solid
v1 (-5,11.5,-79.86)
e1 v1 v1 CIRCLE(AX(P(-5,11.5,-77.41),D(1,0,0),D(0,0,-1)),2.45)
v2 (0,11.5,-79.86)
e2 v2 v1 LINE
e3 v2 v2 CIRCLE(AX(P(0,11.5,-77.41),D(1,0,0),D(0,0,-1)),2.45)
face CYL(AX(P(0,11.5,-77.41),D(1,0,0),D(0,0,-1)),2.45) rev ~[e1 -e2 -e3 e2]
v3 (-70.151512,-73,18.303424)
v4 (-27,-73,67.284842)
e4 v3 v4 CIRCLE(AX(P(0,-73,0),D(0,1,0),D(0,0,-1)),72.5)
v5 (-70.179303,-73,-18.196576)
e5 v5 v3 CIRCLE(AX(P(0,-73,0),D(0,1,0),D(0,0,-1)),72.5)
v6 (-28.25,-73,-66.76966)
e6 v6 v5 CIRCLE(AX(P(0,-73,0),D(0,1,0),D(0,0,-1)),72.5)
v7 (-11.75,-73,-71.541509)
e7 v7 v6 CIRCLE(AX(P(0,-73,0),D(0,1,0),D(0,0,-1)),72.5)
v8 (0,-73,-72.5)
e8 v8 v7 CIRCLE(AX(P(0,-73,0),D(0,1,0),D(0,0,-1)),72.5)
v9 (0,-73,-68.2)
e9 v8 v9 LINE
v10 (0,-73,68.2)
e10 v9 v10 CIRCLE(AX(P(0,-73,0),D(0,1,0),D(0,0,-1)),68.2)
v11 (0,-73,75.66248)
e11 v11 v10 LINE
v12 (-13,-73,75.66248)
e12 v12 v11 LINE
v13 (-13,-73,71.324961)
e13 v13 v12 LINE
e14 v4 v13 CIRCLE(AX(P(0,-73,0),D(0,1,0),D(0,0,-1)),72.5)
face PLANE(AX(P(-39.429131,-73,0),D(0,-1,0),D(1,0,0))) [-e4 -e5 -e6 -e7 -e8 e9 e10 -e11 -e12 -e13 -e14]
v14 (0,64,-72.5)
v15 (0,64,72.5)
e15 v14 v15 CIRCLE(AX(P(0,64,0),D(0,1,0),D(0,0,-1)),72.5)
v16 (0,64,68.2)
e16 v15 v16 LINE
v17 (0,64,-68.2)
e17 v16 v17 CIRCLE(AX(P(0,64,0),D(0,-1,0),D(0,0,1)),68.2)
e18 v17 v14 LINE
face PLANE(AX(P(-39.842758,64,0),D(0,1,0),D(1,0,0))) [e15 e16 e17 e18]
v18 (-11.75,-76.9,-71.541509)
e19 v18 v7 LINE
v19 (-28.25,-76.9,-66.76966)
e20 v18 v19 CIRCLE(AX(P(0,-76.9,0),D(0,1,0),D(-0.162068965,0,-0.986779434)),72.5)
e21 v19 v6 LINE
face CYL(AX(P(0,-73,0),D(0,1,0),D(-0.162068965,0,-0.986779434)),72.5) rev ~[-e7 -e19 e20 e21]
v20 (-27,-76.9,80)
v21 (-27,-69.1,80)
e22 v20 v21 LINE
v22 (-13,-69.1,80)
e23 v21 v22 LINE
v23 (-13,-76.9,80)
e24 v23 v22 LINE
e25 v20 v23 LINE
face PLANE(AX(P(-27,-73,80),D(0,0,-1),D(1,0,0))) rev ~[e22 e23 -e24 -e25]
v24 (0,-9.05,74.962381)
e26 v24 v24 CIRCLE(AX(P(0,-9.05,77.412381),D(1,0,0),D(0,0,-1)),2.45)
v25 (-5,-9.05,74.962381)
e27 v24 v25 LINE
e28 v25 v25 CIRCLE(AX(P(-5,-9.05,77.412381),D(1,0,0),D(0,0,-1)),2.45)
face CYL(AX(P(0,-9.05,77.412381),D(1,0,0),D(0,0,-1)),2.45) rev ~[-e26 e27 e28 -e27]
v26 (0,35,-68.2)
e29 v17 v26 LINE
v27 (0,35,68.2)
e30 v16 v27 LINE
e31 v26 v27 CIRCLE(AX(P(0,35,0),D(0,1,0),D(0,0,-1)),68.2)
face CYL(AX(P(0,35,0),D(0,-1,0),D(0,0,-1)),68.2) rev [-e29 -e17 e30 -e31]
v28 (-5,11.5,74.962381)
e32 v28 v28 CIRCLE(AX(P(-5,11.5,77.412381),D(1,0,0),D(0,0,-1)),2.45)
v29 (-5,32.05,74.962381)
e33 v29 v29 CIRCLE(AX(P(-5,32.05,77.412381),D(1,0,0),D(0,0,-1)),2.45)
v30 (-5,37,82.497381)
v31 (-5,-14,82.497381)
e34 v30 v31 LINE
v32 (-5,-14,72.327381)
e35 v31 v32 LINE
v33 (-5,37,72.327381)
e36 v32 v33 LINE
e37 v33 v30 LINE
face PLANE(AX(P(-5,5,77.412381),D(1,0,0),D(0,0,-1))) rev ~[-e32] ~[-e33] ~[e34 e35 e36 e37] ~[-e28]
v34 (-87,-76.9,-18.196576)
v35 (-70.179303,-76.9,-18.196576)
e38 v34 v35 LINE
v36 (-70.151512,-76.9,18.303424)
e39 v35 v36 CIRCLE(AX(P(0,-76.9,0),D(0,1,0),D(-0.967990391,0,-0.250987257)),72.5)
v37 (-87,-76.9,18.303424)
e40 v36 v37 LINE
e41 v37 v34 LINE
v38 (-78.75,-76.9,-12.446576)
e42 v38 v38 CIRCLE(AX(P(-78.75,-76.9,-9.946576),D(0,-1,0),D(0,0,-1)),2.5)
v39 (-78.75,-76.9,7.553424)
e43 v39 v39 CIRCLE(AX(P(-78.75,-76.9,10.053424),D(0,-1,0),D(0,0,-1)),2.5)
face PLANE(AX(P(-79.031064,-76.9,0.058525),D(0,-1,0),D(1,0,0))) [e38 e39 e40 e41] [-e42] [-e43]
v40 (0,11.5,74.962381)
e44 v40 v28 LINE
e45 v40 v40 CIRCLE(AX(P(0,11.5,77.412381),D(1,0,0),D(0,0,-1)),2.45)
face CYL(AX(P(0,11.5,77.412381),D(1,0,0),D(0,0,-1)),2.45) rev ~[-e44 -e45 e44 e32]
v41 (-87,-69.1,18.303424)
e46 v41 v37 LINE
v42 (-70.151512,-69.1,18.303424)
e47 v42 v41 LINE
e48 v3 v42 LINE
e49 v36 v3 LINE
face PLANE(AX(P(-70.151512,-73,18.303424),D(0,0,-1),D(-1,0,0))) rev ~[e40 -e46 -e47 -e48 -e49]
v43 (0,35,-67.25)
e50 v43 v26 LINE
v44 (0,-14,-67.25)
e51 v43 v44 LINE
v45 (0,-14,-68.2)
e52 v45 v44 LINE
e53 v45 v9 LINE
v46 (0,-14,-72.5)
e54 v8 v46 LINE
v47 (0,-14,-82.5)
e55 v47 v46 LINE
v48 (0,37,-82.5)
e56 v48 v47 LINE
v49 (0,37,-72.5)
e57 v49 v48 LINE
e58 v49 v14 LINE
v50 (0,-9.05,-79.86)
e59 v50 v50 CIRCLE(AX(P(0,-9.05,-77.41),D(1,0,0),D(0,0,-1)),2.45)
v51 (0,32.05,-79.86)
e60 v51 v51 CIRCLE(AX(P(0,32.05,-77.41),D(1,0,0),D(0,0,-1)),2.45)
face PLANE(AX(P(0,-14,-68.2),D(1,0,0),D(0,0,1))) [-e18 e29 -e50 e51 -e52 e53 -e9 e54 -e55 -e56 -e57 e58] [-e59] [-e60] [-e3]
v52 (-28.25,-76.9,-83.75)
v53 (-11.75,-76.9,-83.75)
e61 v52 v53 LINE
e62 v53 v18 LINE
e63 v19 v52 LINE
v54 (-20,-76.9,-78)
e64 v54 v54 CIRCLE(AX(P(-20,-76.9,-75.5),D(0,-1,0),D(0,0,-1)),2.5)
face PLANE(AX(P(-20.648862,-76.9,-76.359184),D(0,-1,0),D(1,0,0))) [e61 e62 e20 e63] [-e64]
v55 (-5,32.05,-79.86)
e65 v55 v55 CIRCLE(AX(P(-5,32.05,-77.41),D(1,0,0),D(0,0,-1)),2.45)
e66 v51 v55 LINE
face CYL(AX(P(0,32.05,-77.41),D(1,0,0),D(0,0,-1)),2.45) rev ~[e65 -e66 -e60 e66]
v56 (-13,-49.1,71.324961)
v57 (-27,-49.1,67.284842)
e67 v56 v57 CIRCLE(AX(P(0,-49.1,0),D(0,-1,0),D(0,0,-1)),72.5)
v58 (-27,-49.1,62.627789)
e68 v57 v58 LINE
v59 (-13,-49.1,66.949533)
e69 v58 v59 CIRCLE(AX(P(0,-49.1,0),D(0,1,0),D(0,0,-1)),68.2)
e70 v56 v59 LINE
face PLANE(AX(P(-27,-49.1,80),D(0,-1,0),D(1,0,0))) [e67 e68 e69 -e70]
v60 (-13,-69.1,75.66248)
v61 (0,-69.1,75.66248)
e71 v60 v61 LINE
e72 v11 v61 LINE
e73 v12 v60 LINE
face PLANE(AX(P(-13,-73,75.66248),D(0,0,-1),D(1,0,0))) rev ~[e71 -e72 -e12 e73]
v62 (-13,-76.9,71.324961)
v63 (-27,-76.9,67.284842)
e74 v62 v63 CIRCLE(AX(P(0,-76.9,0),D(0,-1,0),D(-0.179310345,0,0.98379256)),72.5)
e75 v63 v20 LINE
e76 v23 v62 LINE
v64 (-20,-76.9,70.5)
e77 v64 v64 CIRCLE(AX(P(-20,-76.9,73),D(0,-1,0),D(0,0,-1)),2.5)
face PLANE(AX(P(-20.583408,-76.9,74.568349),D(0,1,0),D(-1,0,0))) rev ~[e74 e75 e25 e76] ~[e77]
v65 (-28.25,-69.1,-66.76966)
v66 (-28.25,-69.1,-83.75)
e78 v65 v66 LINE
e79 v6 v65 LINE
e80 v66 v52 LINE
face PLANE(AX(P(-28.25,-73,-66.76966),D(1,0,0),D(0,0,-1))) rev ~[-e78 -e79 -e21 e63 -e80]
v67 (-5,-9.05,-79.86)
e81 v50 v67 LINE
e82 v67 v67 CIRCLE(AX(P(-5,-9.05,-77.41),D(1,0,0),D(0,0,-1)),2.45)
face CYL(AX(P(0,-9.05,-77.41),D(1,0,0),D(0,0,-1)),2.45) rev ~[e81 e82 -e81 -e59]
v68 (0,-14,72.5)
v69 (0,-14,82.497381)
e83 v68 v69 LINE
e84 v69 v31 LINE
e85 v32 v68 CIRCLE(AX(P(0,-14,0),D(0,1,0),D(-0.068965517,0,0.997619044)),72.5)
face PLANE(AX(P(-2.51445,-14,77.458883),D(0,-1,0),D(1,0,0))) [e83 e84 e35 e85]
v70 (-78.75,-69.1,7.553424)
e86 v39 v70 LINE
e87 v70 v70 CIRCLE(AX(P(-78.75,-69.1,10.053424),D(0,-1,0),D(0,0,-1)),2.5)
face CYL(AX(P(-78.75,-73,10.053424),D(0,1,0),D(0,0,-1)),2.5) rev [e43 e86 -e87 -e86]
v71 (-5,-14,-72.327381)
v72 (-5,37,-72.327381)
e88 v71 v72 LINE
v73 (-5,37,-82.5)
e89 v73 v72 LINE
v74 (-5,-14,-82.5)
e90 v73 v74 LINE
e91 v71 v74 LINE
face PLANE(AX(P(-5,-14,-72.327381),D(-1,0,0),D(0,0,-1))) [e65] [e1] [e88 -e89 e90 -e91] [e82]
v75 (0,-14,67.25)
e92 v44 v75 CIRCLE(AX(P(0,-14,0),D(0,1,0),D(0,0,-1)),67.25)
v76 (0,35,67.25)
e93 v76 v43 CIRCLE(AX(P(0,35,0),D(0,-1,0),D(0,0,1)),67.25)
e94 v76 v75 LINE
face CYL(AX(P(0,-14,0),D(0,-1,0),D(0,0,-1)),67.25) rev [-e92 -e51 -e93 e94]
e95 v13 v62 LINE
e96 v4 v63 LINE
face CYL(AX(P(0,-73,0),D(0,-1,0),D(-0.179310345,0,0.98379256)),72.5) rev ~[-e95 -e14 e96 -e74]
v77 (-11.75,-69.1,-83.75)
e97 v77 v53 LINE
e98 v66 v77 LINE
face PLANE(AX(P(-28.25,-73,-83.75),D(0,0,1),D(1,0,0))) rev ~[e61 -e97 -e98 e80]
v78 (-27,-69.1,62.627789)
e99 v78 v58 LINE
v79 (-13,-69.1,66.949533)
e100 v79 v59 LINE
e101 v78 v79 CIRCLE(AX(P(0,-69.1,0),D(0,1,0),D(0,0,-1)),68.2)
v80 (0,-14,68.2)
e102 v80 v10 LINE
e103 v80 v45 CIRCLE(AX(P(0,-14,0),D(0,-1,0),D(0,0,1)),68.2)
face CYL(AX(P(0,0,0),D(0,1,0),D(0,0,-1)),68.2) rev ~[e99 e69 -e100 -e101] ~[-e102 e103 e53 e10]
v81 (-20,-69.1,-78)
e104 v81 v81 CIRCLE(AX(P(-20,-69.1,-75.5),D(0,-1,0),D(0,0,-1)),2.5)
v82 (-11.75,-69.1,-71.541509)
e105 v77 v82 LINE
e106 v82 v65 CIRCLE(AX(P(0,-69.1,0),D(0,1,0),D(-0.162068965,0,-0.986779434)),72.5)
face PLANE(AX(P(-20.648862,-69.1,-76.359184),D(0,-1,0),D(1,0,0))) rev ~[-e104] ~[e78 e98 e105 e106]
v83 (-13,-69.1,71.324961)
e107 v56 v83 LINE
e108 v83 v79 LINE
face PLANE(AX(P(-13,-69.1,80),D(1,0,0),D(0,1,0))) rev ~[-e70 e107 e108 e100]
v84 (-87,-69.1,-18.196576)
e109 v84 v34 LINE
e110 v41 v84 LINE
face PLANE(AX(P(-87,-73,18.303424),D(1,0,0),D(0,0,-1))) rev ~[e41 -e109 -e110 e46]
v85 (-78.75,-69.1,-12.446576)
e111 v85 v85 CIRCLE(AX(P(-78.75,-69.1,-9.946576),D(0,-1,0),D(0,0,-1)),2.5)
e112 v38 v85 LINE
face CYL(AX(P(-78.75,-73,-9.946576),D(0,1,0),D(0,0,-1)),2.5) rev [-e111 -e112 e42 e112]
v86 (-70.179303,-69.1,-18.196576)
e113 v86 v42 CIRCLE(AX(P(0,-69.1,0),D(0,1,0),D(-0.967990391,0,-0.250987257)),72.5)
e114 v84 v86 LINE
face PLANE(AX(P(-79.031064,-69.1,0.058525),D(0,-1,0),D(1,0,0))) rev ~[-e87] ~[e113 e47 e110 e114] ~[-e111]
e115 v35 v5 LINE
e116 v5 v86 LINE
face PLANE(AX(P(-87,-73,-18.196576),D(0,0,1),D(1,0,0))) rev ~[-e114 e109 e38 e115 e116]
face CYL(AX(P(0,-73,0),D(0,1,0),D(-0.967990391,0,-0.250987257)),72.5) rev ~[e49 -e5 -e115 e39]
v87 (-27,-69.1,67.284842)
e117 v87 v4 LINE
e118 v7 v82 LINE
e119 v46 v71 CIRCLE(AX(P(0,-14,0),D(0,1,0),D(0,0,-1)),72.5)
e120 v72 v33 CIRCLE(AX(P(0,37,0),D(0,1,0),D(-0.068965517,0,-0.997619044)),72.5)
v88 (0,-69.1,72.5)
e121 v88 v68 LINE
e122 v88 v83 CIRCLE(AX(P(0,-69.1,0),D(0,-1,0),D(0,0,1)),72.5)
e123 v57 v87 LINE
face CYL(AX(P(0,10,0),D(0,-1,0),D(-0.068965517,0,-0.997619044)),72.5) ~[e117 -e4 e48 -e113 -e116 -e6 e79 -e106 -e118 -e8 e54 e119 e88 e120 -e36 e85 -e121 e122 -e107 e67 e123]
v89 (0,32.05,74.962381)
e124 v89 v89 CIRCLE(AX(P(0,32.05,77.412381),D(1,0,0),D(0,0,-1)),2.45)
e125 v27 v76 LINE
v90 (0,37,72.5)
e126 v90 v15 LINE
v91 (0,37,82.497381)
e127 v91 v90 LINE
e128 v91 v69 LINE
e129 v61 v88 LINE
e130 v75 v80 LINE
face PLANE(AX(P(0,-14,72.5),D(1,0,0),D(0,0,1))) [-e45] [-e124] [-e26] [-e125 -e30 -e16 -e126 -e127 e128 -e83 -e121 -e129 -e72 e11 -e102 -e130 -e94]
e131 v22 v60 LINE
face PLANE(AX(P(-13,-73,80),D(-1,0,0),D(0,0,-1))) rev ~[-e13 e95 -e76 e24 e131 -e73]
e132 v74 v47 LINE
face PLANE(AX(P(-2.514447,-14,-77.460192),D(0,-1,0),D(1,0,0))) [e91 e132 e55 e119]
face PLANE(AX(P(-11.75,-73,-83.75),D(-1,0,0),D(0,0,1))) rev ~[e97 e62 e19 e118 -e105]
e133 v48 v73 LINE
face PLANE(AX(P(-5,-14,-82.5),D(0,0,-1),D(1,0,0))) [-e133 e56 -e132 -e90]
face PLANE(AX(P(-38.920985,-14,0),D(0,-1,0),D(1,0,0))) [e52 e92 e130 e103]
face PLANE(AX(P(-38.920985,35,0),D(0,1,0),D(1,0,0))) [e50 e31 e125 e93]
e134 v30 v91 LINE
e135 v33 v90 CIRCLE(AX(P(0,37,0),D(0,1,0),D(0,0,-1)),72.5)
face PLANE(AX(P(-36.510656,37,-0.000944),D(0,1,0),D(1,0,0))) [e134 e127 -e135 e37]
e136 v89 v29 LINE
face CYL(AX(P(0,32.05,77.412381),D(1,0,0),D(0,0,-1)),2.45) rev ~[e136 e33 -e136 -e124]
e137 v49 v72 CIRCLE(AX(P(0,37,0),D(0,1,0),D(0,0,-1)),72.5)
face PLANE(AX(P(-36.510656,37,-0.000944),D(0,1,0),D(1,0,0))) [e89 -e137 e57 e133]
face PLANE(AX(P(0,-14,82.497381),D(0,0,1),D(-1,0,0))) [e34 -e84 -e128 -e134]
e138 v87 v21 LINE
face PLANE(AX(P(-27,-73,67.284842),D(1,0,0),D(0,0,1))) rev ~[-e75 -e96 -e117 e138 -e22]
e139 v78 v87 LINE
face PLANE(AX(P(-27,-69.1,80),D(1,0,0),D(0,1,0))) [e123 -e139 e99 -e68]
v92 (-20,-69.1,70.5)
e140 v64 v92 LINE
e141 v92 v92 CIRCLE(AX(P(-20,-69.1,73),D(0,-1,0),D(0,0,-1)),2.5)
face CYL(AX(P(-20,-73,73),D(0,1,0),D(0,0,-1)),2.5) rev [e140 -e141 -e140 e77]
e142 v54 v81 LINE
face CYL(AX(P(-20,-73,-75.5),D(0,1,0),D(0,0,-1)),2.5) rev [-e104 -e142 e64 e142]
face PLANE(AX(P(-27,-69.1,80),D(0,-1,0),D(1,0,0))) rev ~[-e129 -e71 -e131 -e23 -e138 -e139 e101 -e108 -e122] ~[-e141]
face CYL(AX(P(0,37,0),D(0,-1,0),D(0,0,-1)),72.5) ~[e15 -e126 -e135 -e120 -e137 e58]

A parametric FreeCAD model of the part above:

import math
import FreeCAD as App
import Part
import Sketcher
from FreeCAD import Vector


def add_polygon(sketch, points):
    """Adds a closed chain of lines whose ends are joined by coincident constraints."""
    first, n = sketch.GeometryCount, len(points)
    for a, b in zip(points, points[1:] + points[:1]):
        sketch.addGeometry(Part.LineSegment(App.Vector(*a, 0), App.Vector(*b, 0)), False)
    for i in range(n):
        sketch.addConstraint(Sketcher.Constraint("Coincident", first + i, 2, first + (i + 1) % n, 1))

doc = App.newDocument("Part")
body = doc.addObject("PartDesign::Body", "Body")

# Sketch on XZ plane
sketch1 = body.newObject("Sketcher::SketchObject", "Sketch")
sketch1.AttachmentSupport = (doc.getObject("XZ_Plane"), [""])
sketch1.MapMode = "FlatFace"
sketch1.addGeometry([
    Part.LineSegment(Vector(0, 82, 0), Vector(0, 68, 0)),  # 0
    Part.ArcOfCircle(Part.Circle(Vector(0, 0, 0), Vector(0, 0, 1), 68), math.radians(90), math.radians(270)),  # 1
    Part.LineSegment(Vector(0, -68, 0), Vector(0, -82, 0)),  # 2
    Part.LineSegment(Vector(0, -82, 0), Vector(-5, -82, 0)),  # 3
    Part.LineSegment(Vector(-5, -82, 0), Vector(-5, -72, 0)),  # 4
    Part.ArcOfCircle(Part.Circle(Vector(0, 0, 0), Vector(0, 0, 1), 72), math.radians(94), math.radians(266)),  # 5
    Part.LineSegment(Vector(-5, 72, 0), Vector(-5, 82, 0)),  # 6
    Part.LineSegment(Vector(-5, 82, 0), Vector(0, 82, 0)),  # 7
], False)
sketch1.addConstraint([
    Sketcher.Constraint("Coincident", 0, 2, 1, 1),
    Sketcher.Constraint("Coincident", 1, 2, 2, 1),
    Sketcher.Constraint("Coincident", 2, 2, 3, 1),
    Sketcher.Constraint("Coincident", 3, 2, 4, 1),
    Sketcher.Constraint("Coincident", 4, 2, 5, 2),
    Sketcher.Constraint("Coincident", 5, 1, 6, 1),
    Sketcher.Constraint("Coincident", 6, 2, 7, 1),
    Sketcher.Constraint("Coincident", 7, 2, 0, 1),
    Sketcher.Constraint("Vertical", 0),
    Sketcher.Constraint("Vertical", 2),
    Sketcher.Constraint("Horizontal", 3),
    Sketcher.Constraint("Vertical", 4),
    Sketcher.Constraint("Vertical", 6),
    Sketcher.Constraint("Horizontal", 7),
    Sketcher.Constraint("Coincident", 1, 3, -1, 1),
    Sketcher.Constraint("Coincident", 5, 3, -1, 1),
    Sketcher.Constraint("PointOnObject", 0, 2, -2),
    Sketcher.Constraint("PointOnObject", 1, 2, -2),
    Sketcher.Constraint("Vertical", 4, 2, 5, 1),
    Sketcher.Constraint("Radius", 1, 67.5),
    Sketcher.Constraint("Radius", 5, 72.5),
    Sketcher.Constraint("DistanceX", 3, 2, 3, 1, 5.0),
    Sketcher.Constraint("DistanceY", 2, 2, 2, 1, 15.0),
    Sketcher.Constraint("DistanceY", 6, 1, 6, 2, 10.0),
])
pad1 = body.newObject("PartDesign::Pad", "Pad")
pad1.Profile = sketch1
pad1.Length = 10
pad1.Reversed = True

# Sketch on XZ plane
sketch2 = body.newObject("Sketcher::SketchObject", "Sketch001")
sketch2.AttachmentSupport = (doc.getObject("XZ_Plane"), [""])
sketch2.MapMode = "FlatFace"
sketch2.AttachmentOffset = App.Placement(Vector(0, 0, 73), App.Rotation())
sketch2.addGeometry([
    Part.LineSegment(Vector(0, 68.5, 0), Vector(0, 72.5, 0)),
    Part.ArcOfCircle(Part.Circle(Vector(0, 0, 0), Vector(0, 0, 1), 72.5), math.radians(90), math.radians(270)),
    Part.LineSegment(Vector(0, -72.5, 0), Vector(0, -68.5, 0)),
    Part.ArcOfCircle(Part.Circle(Vector(0, 0, 0), Vector(0, 0, 1), 68.5), math.radians(90), math.radians(270)),
], False)
sketch2.addConstraint([
    Sketcher.Constraint("Coincident", 0, 2, 1, 1),
    Sketcher.Constraint("Coincident", 1, 2, 2, 1),
    Sketcher.Constraint("Coincident", 2, 2, 3, 2),
    Sketcher.Constraint("Coincident", 3, 1, 0, 1),
    Sketcher.Constraint("Vertical", 0),
    Sketcher.Constraint("Vertical", 2),
    Sketcher.Constraint("Coincident", 1, 3, -1, 1),
    Sketcher.Constraint("Coincident", 3, 3, -1, 1),
    Sketcher.Constraint("PointOnObject", 0, 2, -2),
    Sketcher.Constraint("PointOnObject", 1, 2, -2),
    Sketcher.Constraint("Radius", 1, 72.5),
    Sketcher.Constraint("Radius", 3, 68.5),
])
pad2 = body.newObject("PartDesign::Pad", "Pad001")
pad2.Profile = sketch2
pad2.Length = 73
pad2.Reversed = True

# Sketch on XZ plane
sketch3 = body.newObject("Sketcher::SketchObject", "Sketch002")
sketch3.AttachmentSupport = (doc.getObject("XZ_Plane"), [""])
sketch3.MapMode = "FlatFace"
sketch3.AttachmentOffset = App.Placement(Vector(0, 0, 73), App.Rotation())
sketch3.addGeometry([
    Part.LineSegment(Vector(-70.2, 18.3, 0), Vector(-87, 18.3, 0)),  # 0
    Part.LineSegment(Vector(-87, 18.3, 0), Vector(-87, -18.2, 0)),  # 1
    Part.LineSegment(Vector(-87, -18.2, 0), Vector(-70.2, -18.2, 0)),  # 2
    Part.ArcOfCircle(Part.Circle(Vector(0, 0, 0), Vector(0, 0, 1), 72.5), math.radians(165), math.radians(195)),  # 3
    Part.Circle(Vector(-78.8, -9.9, 0), Vector(0, 0, 1), 2.5),  # 4
    Part.Circle(Vector(-78.8, 10.1, 0), Vector(0, 0, 1), 2.5),  # 5
    Part.LineSegment(Vector(-28.2, -66.8, 0), Vector(-28.2, -83.8, 0)),  # 6
    Part.LineSegment(Vector(-28.2, -83.8, 0), Vector(-11.8, -83.8, 0)),  # 7
    Part.LineSegment(Vector(-11.8, -83.8, 0), Vector(-11.8, -71.5, 0)),  # 8
    Part.ArcOfCircle(Part.Circle(Vector(0, 0, 0), Vector(0, 0, 1), 72.5), math.radians(-112.93), math.radians(-99.33)),  # 9
    Part.Circle(Vector(-20, -75.5, 0), Vector(0, 0, 1), 2.5),  # 10
    Part.LineSegment(Vector(-27, 80, 0), Vector(-27, 67.3, 0)),  # 11
    Part.ArcOfCircle(Part.Circle(Vector(0, 0, 0), Vector(0, 0, 1), 72.5), math.radians(100.33), math.radians(111.86)),  # 12
    Part.LineSegment(Vector(-13, 71.3, 0), Vector(-13, 80, 0)),  # 13
    Part.LineSegment(Vector(-13, 80, 0), Vector(-27, 80, 0)),  # 14
    Part.Circle(Vector(-20, 73, 0), Vector(0, 0, 1), 2.5),  # 15
], False)
sketch3.addConstraint([
    Sketcher.Constraint("Coincident", 0, 2, 1, 1),
    Sketcher.Constraint("Coincident", 1, 2, 2, 1),
    Sketcher.Constraint("Coincident", 2, 2, 3, 2),
    Sketcher.Constraint("Coincident", 3, 1, 0, 1),
    Sketcher.Constraint("Coincident", 6, 2, 7, 1),
    Sketcher.Constraint("Coincident", 7, 2, 8, 1),
    Sketcher.Constraint("Coincident", 8, 2, 9, 2),
    Sketcher.Constraint("Coincident", 9, 1, 6, 1),
    Sketcher.Constraint("Coincident", 11, 2, 12, 2),
    Sketcher.Constraint("Coincident", 12, 1, 13, 1),
    Sketcher.Constraint("Coincident", 13, 2, 14, 1),
    Sketcher.Constraint("Coincident", 14, 2, 11, 1),
    Sketcher.Constraint("Horizontal", 0),
    Sketcher.Constraint("Vertical", 1),
    Sketcher.Constraint("Horizontal", 2),
    Sketcher.Constraint("Vertical", 6),
    Sketcher.Constraint("Horizontal", 7),
    Sketcher.Constraint("Vertical", 8),
    Sketcher.Constraint("Vertical", 11),
    Sketcher.Constraint("Vertical", 13),
    Sketcher.Constraint("Horizontal", 14),
    Sketcher.Constraint("Coincident", 3, 3, -1, 1),
    Sketcher.Constraint("Coincident", 9, 3, -1, 1),
    Sketcher.Constraint("Coincident", 12, 3, -1, 1),
    Sketcher.Constraint("Equal", 4, 5),
    Sketcher.Constraint("Equal", 3, 9),
    Sketcher.Constraint("Equal", 5, 10),
    Sketcher.Constraint("Equal", 9, 12),
    Sketcher.Constraint("Equal", 10, 15),
    Sketcher.Constraint("Vertical", 4, 3, 5, 3),
    Sketcher.Constraint("Vertical", 10, 3, 15, 3),
    Sketcher.Constraint("Diameter", 4, 5.0),
    Sketcher.Constraint("Radius", 3, 72.5),
    Sketcher.Constraint("DistanceX", 14, 2, 14, 1, 14.0),
    Sketcher.Constraint("DistanceX", 7, 1, 7, 2, 16.5),
    Sketcher.Constraint("DistanceY", 1, 2, 1, 1, 36.5),
    Sketcher.Constraint("DistanceX", 10, 3, -1, 1, 20.0),
    Sketcher.Constraint("DistanceY", -1, 1, 15, 3, 73.0),
    Sketcher.Constraint("DistanceX", 0, 2, -1, 1, 87.0),
    Sketcher.Constraint("DistanceX", 11, 2, -1, 1, 27.0),
    Sketcher.Constraint("DistanceY", -1, 1, 13, 2, 80.0),
    Sketcher.Constraint("DistanceY", 4, 3, 5, 3, 20.0),
    Sketcher.Constraint("DistanceY", 10, 3, -1, 1, 75.5),
    Sketcher.Constraint("DistanceX", 4, 3, -1, 1, 78.75),
    Sketcher.Constraint("DistanceX", 6, 2, -1, 1, 28.25),
    Sketcher.Constraint("DistanceY", 6, 2, -1, 1, 83.75),
    Sketcher.Constraint("DistanceY", 5, 3, 0, 2, 8.25),
    Sketcher.Constraint("DistanceX", 0, 2, 0, 1, 16.848488),
])
pad3 = body.newObject("PartDesign::Pad", "Pad002")
pad3.Profile = sketch3
pad3.Length = 7.8
pad3.Midplane = True

# Sketch on YZ plane
sketch4 = body.newObject("Sketcher::SketchObject", "Sketch003")
sketch4.AttachmentSupport = (doc.getObject("YZ_Plane"), [""])
sketch4.MapMode = "FlatFace"
sketch4.AttachmentOffset = App.Placement(Vector(0, 0, -5), App.Rotation())
sketch4.addGeometry([
    Part.Circle(Vector(5, 77.4, 0), Vector(0, 0, 1), 2.5),
    Part.Circle(Vector(5, -77.4, 0), Vector(0, 0, 1), 2.5),
], False)
sketch4.addConstraint([
    Sketcher.Constraint("Equal", 0, 1),
    Sketcher.Constraint("Vertical", 0, 3, 1, 3),
    Sketcher.Constraint("Diameter", 0, 4.9),
    Sketcher.Constraint("DistanceX", -1, 1, 0, 3, 5.0),
    Sketcher.Constraint("DistanceY", -1, 1, 0, 3, 77.412381),
    Sketcher.Constraint("DistanceY", 1, 3, -1, 1, 77.41369),
])
pocket1 = body.newObject("PartDesign::Pocket", "Pocket")
pocket1.Profile = sketch4
pocket1.Length = 13.9
pocket1.Reversed = True

# Sketch on XY plane
sketch5 = body.newObject("Sketcher::SketchObject", "Sketch004")
sketch5.AttachmentSupport = (doc.getObject("XY_Plane"), [""])
sketch5.MapMode = "FlatFace"
sketch5.AttachmentOffset = App.Placement(Vector(0, 0, 80), App.Rotation())
add_polygon(sketch5, [(-27, -49), (-27, -69), (-13, -69), (-13, -49)])  # lines 0-3
sketch5.addConstraint([
    Sketcher.Constraint("Vertical", 0),
    Sketcher.Constraint("Horizontal", 1),
    Sketcher.Constraint("Vertical", 2),
    Sketcher.Constraint("Horizontal", 3),
    Sketcher.Constraint("DistanceX", 1, 1, 1, 2, 14.0),
    Sketcher.Constraint("DistanceY", 0, 2, 0, 1, 20.0),
    Sketcher.Constraint("DistanceX", 0, 2, -1, 1, 27.0),
    Sketcher.Constraint("DistanceY", 0, 2, -1, 1, 69.1),
])
pocket2 = body.newObject("PartDesign::Pocket", "Pocket001")
pocket2.Profile = sketch5
pocket2.Length = 23.9

# Sketch on XZ plane
sketch6 = body.newObject("Sketcher::SketchObject", "Sketch005")
sketch6.AttachmentSupport = (doc.getObject("XZ_Plane"), [""])
sketch6.MapMode = "FlatFace"
sketch6.AttachmentOffset = App.Placement(Vector(0, 0, 73), App.Rotation())
sketch6.addGeometry([
    Part.LineSegment(Vector(-13, 71.3, 0), Vector(-13, 75.7, 0)),
    Part.LineSegment(Vector(-13, 75.7, 0), Vector(0, 75.7, 0)),
    Part.LineSegment(Vector(0, 75.7, 0), Vector(0, 72.5, 0)),
    Part.ArcOfCircle(Part.Circle(Vector(0, 0, 0), Vector(0, 0, 1), 72.5), math.radians(90), math.radians(100.33)),
], False)
sketch6.addConstraint([
    Sketcher.Constraint("Coincident", 0, 2, 1, 1),
    Sketcher.Constraint("Coincident", 1, 2, 2, 1),
    Sketcher.Constraint("Coincident", 2, 2, 3, 1),
    Sketcher.Constraint("Coincident", 3, 2, 0, 1),
    Sketcher.Constraint("Vertical", 0),
    Sketcher.Constraint("Horizontal", 1),
    Sketcher.Constraint("Vertical", 2),
    Sketcher.Constraint("Coincident", 3, 3, -1, 1),
    Sketcher.Constraint("PointOnObject", 1, 2, -2),
    Sketcher.Constraint("Radius", 3, 72.5),
    Sketcher.Constraint("DistanceX", 1, 1, 1, 2, 13.0),
    Sketcher.Constraint("DistanceY", 0, 1, 0, 2, 4.33752),
])
pad4 = body.newObject("PartDesign::Pad", "Pad003")
pad4.Profile = sketch6
pad4.Length = 3.9
pad4.Reversed = True

# Sketch on XY plane
sketch7 = body.newObject("Sketcher::SketchObject", "Sketch006")
sketch7.AttachmentSupport = (doc.getObject("XY_Plane"), [""])
sketch7.MapMode = "FlatFace"
sketch7.AttachmentOffset = App.Placement(Vector(0, 0, 82.327381), App.Rotation())
add_polygon(sketch7, [(-5, 10), (-5, 0), (0, 0), (0, 10)])  # lines 0-3
sketch7.addConstraint([
    Sketcher.Constraint("Vertical", 0),
    Sketcher.Constraint("Horizontal", 1),
    Sketcher.Constraint("Vertical", 2),
    Sketcher.Constraint("Horizontal", 3),
    Sketcher.Constraint("Coincident", 1, 2, -1, 1),
    Sketcher.Constraint("DistanceX", 1, 1, 1, 2, 5.0),
    Sketcher.Constraint("DistanceY", 0, 2, 0, 1, 10.0),
])
pad5 = body.newObject("PartDesign::Pad", "Pad004")
pad5.Profile = sketch7
pad5.Length = 0.17

# Sketch on XZ plane
sketch8 = body.newObject("Sketcher::SketchObject", "Sketch007")
sketch8.AttachmentSupport = (doc.getObject("XZ_Plane"), [""])
sketch8.MapMode = "FlatFace"
sketch8.addGeometry(Part.Circle(Vector(0, 0, 0), Vector(0, 0, 1), 69), False)
sketch8.addConstraint([
    Sketcher.Constraint("Coincident", 0, 3, -1, 1),
    Sketcher.Constraint("Diameter", 0, 137.5),
])
pocket3 = body.newObject("PartDesign::Pocket", "Pocket002")
pocket3.Profile = sketch8
pocket3.Length = 73
pocket3.Reversed = True

# Sketch on XZ plane
sketch9 = body.newObject("Sketcher::SketchObject", "Sketch008")
sketch9.AttachmentSupport = (doc.getObject("XZ_Plane"), [""])
sketch9.MapMode = "FlatFace"
sketch9.AttachmentOffset = App.Placement(Vector(0, 0, -10), App.Rotation())
sketch9.addGeometry([
    Part.LineSegment(Vector(-5, 72, 0), Vector(-5, 82, 0)),  # 0
    Part.LineSegment(Vector(-5, 82, 0), Vector(0, 82, 0)),  # 1
    Part.LineSegment(Vector(0, 82, 0), Vector(0, 68, 0)),  # 2
    Part.ArcOfCircle(Part.Circle(Vector(0, 0, 0), Vector(0, 0, 1), 68), math.radians(90), math.radians(270)),  # 3
    Part.LineSegment(Vector(0, -68, 0), Vector(0, -82, 0)),  # 4
    Part.LineSegment(Vector(0, -82, 0), Vector(-5, -82, 0)),  # 5
    Part.LineSegment(Vector(-5, -82, 0), Vector(-5, -72, 0)),  # 6
    Part.ArcOfCircle(Part.Circle(Vector(0, 0, 0), Vector(0, 0, 1), 72), math.radians(94), math.radians(266)),  # 7
], False)
sketch9.addConstraint([
    Sketcher.Constraint("Coincident", 0, 2, 1, 1),
    Sketcher.Constraint("Coincident", 1, 2, 2, 1),
    Sketcher.Constraint("Coincident", 2, 2, 3, 1),
    Sketcher.Constraint("Coincident", 3, 2, 4, 1),
    Sketcher.Constraint("Coincident", 4, 2, 5, 1),
    Sketcher.Constraint("Coincident", 5, 2, 6, 1),
    Sketcher.Constraint("Coincident", 6, 2, 7, 2),
    Sketcher.Constraint("Coincident", 7, 1, 0, 1),
    Sketcher.Constraint("Vertical", 0),
    Sketcher.Constraint("Horizontal", 1),
    Sketcher.Constraint("Vertical", 2),
    Sketcher.Constraint("Vertical", 4),
    Sketcher.Constraint("Horizontal", 5),
    Sketcher.Constraint("Vertical", 6),
    Sketcher.Constraint("Coincident", 3, 3, -1, 1),
    Sketcher.Constraint("Coincident", 7, 3, -1, 1),
    Sketcher.Constraint("PointOnObject", 1, 2, -2),
    Sketcher.Constraint("PointOnObject", 3, 2, -2),
    Sketcher.Constraint("Vertical", 0, 2, 5, 2),
    Sketcher.Constraint("Radius", 3, 67.5),
    Sketcher.Constraint("Radius", 7, 72.5),
    Sketcher.Constraint("DistanceX", 1, 1, 1, 2, 5.0),
    Sketcher.Constraint("DistanceY", 4, 2, 4, 1, 15.0),
    Sketcher.Constraint("DistanceY", 0, 1, 0, 2, 10.17),
])
pad6 = body.newObject("PartDesign::Pad", "Pad005")
pad6.Profile = sketch9
pad6.Length = 27
pad6.Reversed = True

# Sketch on XZ plane
sketch10 = body.newObject("Sketcher::SketchObject", "Sketch009")
sketch10.AttachmentSupport = (doc.getObject("XZ_Plane"), [""])
sketch10.MapMode = "FlatFace"
sketch10.AttachmentOffset = App.Placement(Vector(0, 0, -37), App.Rotation())
sketch10.addGeometry([
    Part.LineSegment(Vector(0, -68.2, 0), Vector(0, -72.5, 0)),
    Part.ArcOfCircle(Part.Circle(Vector(0, 0, 0), Vector(0, 0, 1), 72.5), math.radians(90), math.radians(270)),
    Part.LineSegment(Vector(0, 72.5, 0), Vector(0, 68.2, 0)),
    Part.ArcOfCircle(Part.Circle(Vector(0, 0, 0), Vector(0, 0, 1), 68.2), math.radians(90), math.radians(270)),
], False)
sketch10.addConstraint([
    Sketcher.Constraint("Coincident", 0, 2, 1, 2),
    Sketcher.Constraint("Coincident", 1, 1, 2, 1),
    Sketcher.Constraint("Coincident", 2, 2, 3, 1),
    Sketcher.Constraint("Coincident", 3, 2, 0, 1),
    Sketcher.Constraint("Vertical", 0),
    Sketcher.Constraint("Vertical", 2),
    Sketcher.Constraint("Coincident", 1, 3, -1, 1),
    Sketcher.Constraint("Coincident", 3, 3, -1, 1),
    Sketcher.Constraint("PointOnObject", 0, 2, -2),
    Sketcher.Constraint("PointOnObject", 1, 1, -2),
    Sketcher.Constraint("Radius", 1, 72.5),
    Sketcher.Constraint("Radius", 3, 68.2),
])
pad7 = body.newObject("PartDesign::Pad", "Pad006")
pad7.Profile = sketch10
pad7.Length = 27
pad7.Reversed = True

# Sketch on XZ plane
sketch11 = body.newObject("Sketcher::SketchObject", "Sketch010")
sketch11.AttachmentSupport = (doc.getObject("XZ_Plane"), [""])
sketch11.MapMode = "FlatFace"
sketch11.addGeometry([
    Part.LineSegment(Vector(0, 68.2, 0), Vector(0, 68.8, 0)),
    Part.ArcOfCircle(Part.Circle(Vector(0, 0, 0), Vector(0, 0, 1), 68.8), math.radians(90), math.radians(270)),
    Part.LineSegment(Vector(0, -68.8, 0), Vector(0, -68.2, 0)),
    Part.ArcOfCircle(Part.Circle(Vector(0, 0, 0), Vector(0, 0, 1), 68.2), math.radians(90), math.radians(270)),
], False)
sketch11.addConstraint([
    Sketcher.Constraint("Coincident", 0, 2, 1, 1),
    Sketcher.Constraint("Coincident", 1, 2, 2, 1),
    Sketcher.Constraint("Coincident", 2, 2, 3, 2),
    Sketcher.Constraint("Coincident", 3, 1, 0, 1),
    Sketcher.Constraint("Vertical", 0),
    Sketcher.Constraint("Vertical", 2),
    Sketcher.Constraint("Coincident", 1, 3, -1, 1),
    Sketcher.Constraint("Coincident", 3, 3, -1, 1),
    Sketcher.Constraint("PointOnObject", 0, 2, -2),
    Sketcher.Constraint("PointOnObject", 1, 2, -2),
    Sketcher.Constraint("Radius", 3, 68.2),
    Sketcher.Constraint("Radius", 1, 68.75),
])
pad8 = body.newObject("PartDesign::Pad", "Pad007")
pad8.Profile = sketch11
pad8.Length = 73

# Sketch on XZ plane
sketch12 = body.newObject("Sketcher::SketchObject", "Sketch011")
sketch12.AttachmentSupport = (doc.getObject("XZ_Plane"), [""])
sketch12.MapMode = "FlatFace"
sketch12.addGeometry([
    Part.LineSegment(Vector(0, 67.5, 0), Vector(0, 67.25, 0)),
    Part.ArcOfCircle(Part.Circle(Vector(0, 0, 0), Vector(0, 0, 1), 67.25), math.radians(90), math.radians(270)),
    Part.LineSegment(Vector(0, -67.25, 0), Vector(0, -67.5, 0)),
    Part.ArcOfCircle(Part.Circle(Vector(0, 0, 0), Vector(0, 0, 1), 67.5), math.radians(90), math.radians(270)),
], False)
sketch12.addConstraint([
    Sketcher.Constraint("Coincident", 0, 2, 1, 1),
    Sketcher.Constraint("Coincident", 1, 2, 2, 1),
    Sketcher.Constraint("Coincident", 2, 2, 3, 2),
    Sketcher.Constraint("Coincident", 3, 1, 0, 1),
    Sketcher.Constraint("Vertical", 0),
    Sketcher.Constraint("Vertical", 2),
    Sketcher.Constraint("Coincident", 1, 3, -1, 1),
    Sketcher.Constraint("Coincident", 3, 3, -1, 1),
    Sketcher.Constraint("PointOnObject", 0, 2, -2),
    Sketcher.Constraint("PointOnObject", 1, 2, -2),
    Sketcher.Constraint("Radius", 3, 67.5),
    Sketcher.Constraint("Radius", 1, 67.25),
])
pad9 = body.newObject("PartDesign::Pad", "Pad008")
pad9.Profile = sketch12
pad9.Length = 37
pad9.Reversed = True

# Sketch on XZ plane
sketch13 = body.newObject("Sketcher::SketchObject", "Sketch012")
sketch13.AttachmentSupport = (doc.getObject("XZ_Plane"), [""])
sketch13.MapMode = "FlatFace"
sketch13.AttachmentOffset = App.Placement(Vector(0, 0, 14), App.Rotation())
sketch13.addGeometry([
    Part.LineSegment(Vector(0, -68.2, 0), Vector(0, -67.2, 0)),
    Part.ArcOfCircle(Part.Circle(Vector(0, 0, 0), Vector(0, 0, 1), 67.2), math.radians(90), math.radians(270)),
    Part.LineSegment(Vector(0, 67.2, 0), Vector(0, 68.2, 0)),
    Part.ArcOfCircle(Part.Circle(Vector(0, 0, 0), Vector(0, 0, 1), 68.2), math.radians(90), math.radians(270)),
], False)
sketch13.addConstraint([
    Sketcher.Constraint("Coincident", 0, 2, 1, 2),
    Sketcher.Constraint("Coincident", 1, 1, 2, 1),
    Sketcher.Constraint("Coincident", 2, 2, 3, 1),
    Sketcher.Constraint("Coincident", 3, 2, 0, 1),
    Sketcher.Constraint("Vertical", 0),
    Sketcher.Constraint("Vertical", 2),
    Sketcher.Constraint("Coincident", 1, 3, -1, 1),
    Sketcher.Constraint("Coincident", 3, 3, -1, 1),
    Sketcher.Constraint("PointOnObject", 0, 2, -2),
    Sketcher.Constraint("PointOnObject", 1, 1, -2),
    Sketcher.Constraint("Radius", 3, 68.2),
    Sketcher.Constraint("Radius", 1, 67.25),
])
pad10 = body.newObject("PartDesign::Pad", "Pad009")
pad10.Profile = sketch13
pad10.Length = 14
pad10.Reversed = True

# Sketch on XZ plane
sketch14 = body.newObject("Sketcher::SketchObject", "Sketch013")
sketch14.AttachmentSupport = (doc.getObject("XZ_Plane"), [""])
sketch14.MapMode = "FlatFace"
sketch14.AttachmentOffset = App.Placement(Vector(0, 0, -35), App.Rotation())
sketch14.addGeometry([
    Part.LineSegment(Vector(0, -67.2, 0), Vector(0, -68.2, 0)),
    Part.ArcOfCircle(Part.Circle(Vector(0, 0, 0), Vector(0, 0, 1), 68.2), math.radians(90), math.radians(270)),
    Part.LineSegment(Vector(0, 68.2, 0), Vector(0, 67.2, 0)),
    Part.ArcOfCircle(Part.Circle(Vector(0, 0, 0), Vector(0, 0, 1), 67.2), math.radians(90), math.radians(270)),
], False)
sketch14.addConstraint([
    Sketcher.Constraint("Coincident", 0, 2, 1, 2),
    Sketcher.Constraint("Coincident", 1, 1, 2, 1),
    Sketcher.Constraint("Coincident", 2, 2, 3, 1),
    Sketcher.Constraint("Coincident", 3, 2, 0, 1),
    Sketcher.Constraint("Vertical", 0),
    Sketcher.Constraint("Vertical", 2),
    Sketcher.Constraint("Coincident", 1, 3, -1, 1),
    Sketcher.Constraint("Coincident", 3, 3, -1, 1),
    Sketcher.Constraint("PointOnObject", 0, 2, -2),
    Sketcher.Constraint("PointOnObject", 1, 1, -2),
    Sketcher.Constraint("Radius", 1, 68.2),
    Sketcher.Constraint("Radius", 3, 67.25),
])
pocket4 = body.newObject("PartDesign::Pocket", "Pocket003")
pocket4.Profile = sketch14
pocket4.Length = 2

# Sketch on XY plane
sketch15 = body.newObject("Sketcher::SketchObject", "Sketch014")
sketch15.AttachmentSupport = (doc.getObject("XY_Plane"), [""])
sketch15.MapMode = "FlatFace"
sketch15.AttachmentOffset = App.Placement(Vector(0, 0, 80), App.Rotation())
add_polygon(sketch15, [(-27, -49), (-27, -69), (-13, -69), (-13, -49)])  # lines 0-3
sketch15.addConstraint([
    Sketcher.Constraint("Vertical", 0),
    Sketcher.Constraint("Horizontal", 1),
    Sketcher.Constraint("Vertical", 2),
    Sketcher.Constraint("Horizontal", 3),
    Sketcher.Constraint("DistanceX", 1, 1, 1, 2, 14.0),
    Sketcher.Constraint("DistanceY", 0, 2, 0, 1, 20.0),
    Sketcher.Constraint("DistanceX", 0, 2, -1, 1, 27.0),
    Sketcher.Constraint("DistanceY", 0, 2, -1, 1, 69.1),
])
pocket5 = body.newObject("PartDesign::Pocket", "Pocket004")
pocket5.Profile = sketch15
pocket5.Length = 22

# Sketch on XZ plane
sketch16 = body.newObject("Sketcher::SketchObject", "Sketch015")
sketch16.AttachmentSupport = (doc.getObject("XZ_Plane"), [""])
sketch16.MapMode = "FlatFace"
sketch16.AttachmentOffset = App.Placement(Vector(0, 0, 14), App.Rotation())
sketch16.addGeometry([
    Part.LineSegment(Vector(0, 72, 0), Vector(0, 82, 0)),
    Part.LineSegment(Vector(0, 82, 0), Vector(-5, 82, 0)),
    Part.LineSegment(Vector(-5, 82, 0), Vector(-5, 72, 0)),
    Part.ArcOfCircle(Part.Circle(Vector(0, 0, 0), Vector(0, 0, 1), 73), math.radians(90), math.radians(93.95)),
], False)
sketch16.addConstraint([
    Sketcher.Constraint("Coincident", 0, 2, 1, 1),
    Sketcher.Constraint("Coincident", 1, 2, 2, 1),
    Sketcher.Constraint("Coincident", 2, 2, 3, 2),
    Sketcher.Constraint("Coincident", 3, 1, 0, 1),
    Sketcher.Constraint("Vertical", 0),
    Sketcher.Constraint("Horizontal", 1),
    Sketcher.Constraint("Vertical", 2),
    Sketcher.Constraint("Coincident", 3, 3, -1, 1),
    Sketcher.Constraint("PointOnObject", 0, 2, -2),
    Sketcher.Constraint("Radius", 3, 72.5),
    Sketcher.Constraint("DistanceX", 1, 2, 1, 1, 5.0),
    Sketcher.Constraint("DistanceY", 2, 2, 2, 1, 10.17),
])
pad11 = body.newObject("PartDesign::Pad", "Pad010")
pad11.Profile = sketch16
pad11.Length = 14
pad11.Reversed = True

# Sketch on YZ plane
sketch17 = body.newObject("Sketcher::SketchObject", "Sketch016")
sketch17.AttachmentSupport = (doc.getObject("YZ_Plane"), [""])
sketch17.MapMode = "FlatFace"
sketch17.AttachmentOffset = App.Placement(Vector(0, 0, -5), App.Rotation())
sketch17.addGeometry(Part.Circle(Vector(5, 77.4, 0), Vector(0, 0, 1), 2.5), False)
sketch17.addConstraint([
    Sketcher.Constraint("Diameter", 0, 4.9),
    Sketcher.Constraint("DistanceX", -1, 1, 0, 3, 5.0),
    Sketcher.Constraint("DistanceY", -1, 1, 0, 3, 77.412381),
])
pad12 = body.newObject("PartDesign::Pad", "Pad011")
pad12.Profile = sketch17
pad12.Length = 5

# Sketch on YZ plane
sketch18 = body.newObject("Sketcher::SketchObject", "Sketch017")
sketch18.AttachmentSupport = (doc.getObject("YZ_Plane"), [""])
sketch18.MapMode = "FlatFace"
sketch18.addGeometry([
    Part.Circle(Vector(-9.1, 77.4, 0), Vector(0, 0, 1), 2.5),
    Part.Circle(Vector(32, 77.4, 0), Vector(0, 0, 1), 2.5),
    Part.Circle(Vector(11.5, 77.4, 0), Vector(0, 0, 1), 2.5),
], False)
sketch18.addConstraint([
    Sketcher.Constraint("Equal", 0, 1),
    Sketcher.Constraint("Equal", 1, 2),
    Sketcher.Constraint("Horizontal", 0, 3, 1, 3),
    Sketcher.Constraint("Horizontal", 1, 3, 2, 3),
    Sketcher.Constraint("Diameter", 0, 4.9),
    Sketcher.Constraint("DistanceX", -1, 1, 2, 3, 11.5),
    Sketcher.Constraint("DistanceX", 0, 3, 1, 3, 41.1),
    Sketcher.Constraint("DistanceX", 0, 3, -1, 1, 9.05),
    Sketcher.Constraint("DistanceY", -1, 1, 0, 3, 77.412381),
])
pocket6 = body.newObject("PartDesign::Pocket", "Pocket005")
pocket6.Profile = sketch18
pocket6.Length = 22

# Sketch on YZ plane
sketch19 = body.newObject("Sketcher::SketchObject", "Sketch018")
sketch19.AttachmentSupport = (doc.getObject("YZ_Plane"), [""])
sketch19.MapMode = "FlatFace"
sketch19.AttachmentOffset = App.Placement(Vector(0, 0, -5), App.Rotation())
sketch19.addGeometry(Part.Circle(Vector(5, -77.4, 0), Vector(0, 0, 1), 2.5), False)
sketch19.addConstraint([
    Sketcher.Constraint("Diameter", 0, 4.9),
    Sketcher.Constraint("DistanceX", -1, 1, 0, 3, 5.0),
    Sketcher.Constraint("DistanceY", 0, 3, -1, 1, 77.41369),
])
pad13 = body.newObject("PartDesign::Pad", "Pad012")
pad13.Profile = sketch19
pad13.Length = 5

# Sketch on XZ plane
sketch20 = body.newObject("Sketcher::SketchObject", "Sketch019")
sketch20.AttachmentSupport = (doc.getObject("XZ_Plane"), [""])
sketch20.MapMode = "FlatFace"
sketch20.AttachmentOffset = App.Placement(Vector(0, 0, 14), App.Rotation())
sketch20.addGeometry([
    Part.LineSegment(Vector(-5, -72, 0), Vector(-5, -82, 0)),
    Part.LineSegment(Vector(-5, -82, 0), Vector(0, -82, 0)),
    Part.LineSegment(Vector(0, -82, 0), Vector(0, -72, 0)),
    Part.ArcOfCircle(Part.Circle(Vector(0, 0, 0), Vector(0, 0, 1), 73), math.radians(-93.95), math.radians(-90)),
], False)
sketch20.addConstraint([
    Sketcher.Constraint("Coincident", 0, 2, 1, 1),
    Sketcher.Constraint("Coincident", 1, 2, 2, 1),
    Sketcher.Constraint("Coincident", 2, 2, 3, 2),
    Sketcher.Constraint("Coincident", 3, 1, 0, 1),
    Sketcher.Constraint("Vertical", 0),
    Sketcher.Constraint("Horizontal", 1),
    Sketcher.Constraint("Vertical", 2),
    Sketcher.Constraint("Coincident", 3, 3, -1, 1),
    Sketcher.Constraint("PointOnObject", 1, 2, -2),
    Sketcher.Constraint("Radius", 3, 72.5),
    Sketcher.Constraint("DistanceX", 1, 1, 1, 2, 5.0),
    Sketcher.Constraint("DistanceY", 2, 1, 2, 2, 10.0),
])
pad14 = body.newObject("PartDesign::Pad", "Pad013")
pad14.Profile = sketch20
pad14.Length = 14
pad14.Reversed = True

# Sketch on YZ plane
sketch21 = body.newObject("Sketcher::SketchObject", "Sketch020")
sketch21.AttachmentSupport = (doc.getObject("YZ_Plane"), [""])
sketch21.MapMode = "FlatFace"
sketch21.addGeometry([
    Part.Circle(Vector(32, -77.4, 0), Vector(0, 0, 1), 2.5),
    Part.Circle(Vector(11.5, -77.4, 0), Vector(0, 0, 1), 2.5),
    Part.Circle(Vector(-9.1, -77.4, 0), Vector(0, 0, 1), 2.5),
], False)
sketch21.addConstraint([
    Sketcher.Constraint("Equal", 0, 1),
    Sketcher.Constraint("Equal", 1, 2),
    Sketcher.Constraint("Horizontal", 0, 3, 1, 3),
    Sketcher.Constraint("Horizontal", 1, 3, 2, 3),
    Sketcher.Constraint("Diameter", 0, 4.9),
    Sketcher.Constraint("DistanceX", -1, 1, 1, 3, 11.5),
    Sketcher.Constraint("DistanceX", 2, 3, 0, 3, 41.1),
    Sketcher.Constraint("DistanceX", -1, 1, 0, 3, 32.05),
    Sketcher.Constraint("DistanceY", 0, 3, -1, 1, 77.41),
])
pocket7 = body.newObject("PartDesign::Pocket", "Pocket006")
pocket7.Profile = sketch21
pocket7.Length = 22

doc.recompute()
